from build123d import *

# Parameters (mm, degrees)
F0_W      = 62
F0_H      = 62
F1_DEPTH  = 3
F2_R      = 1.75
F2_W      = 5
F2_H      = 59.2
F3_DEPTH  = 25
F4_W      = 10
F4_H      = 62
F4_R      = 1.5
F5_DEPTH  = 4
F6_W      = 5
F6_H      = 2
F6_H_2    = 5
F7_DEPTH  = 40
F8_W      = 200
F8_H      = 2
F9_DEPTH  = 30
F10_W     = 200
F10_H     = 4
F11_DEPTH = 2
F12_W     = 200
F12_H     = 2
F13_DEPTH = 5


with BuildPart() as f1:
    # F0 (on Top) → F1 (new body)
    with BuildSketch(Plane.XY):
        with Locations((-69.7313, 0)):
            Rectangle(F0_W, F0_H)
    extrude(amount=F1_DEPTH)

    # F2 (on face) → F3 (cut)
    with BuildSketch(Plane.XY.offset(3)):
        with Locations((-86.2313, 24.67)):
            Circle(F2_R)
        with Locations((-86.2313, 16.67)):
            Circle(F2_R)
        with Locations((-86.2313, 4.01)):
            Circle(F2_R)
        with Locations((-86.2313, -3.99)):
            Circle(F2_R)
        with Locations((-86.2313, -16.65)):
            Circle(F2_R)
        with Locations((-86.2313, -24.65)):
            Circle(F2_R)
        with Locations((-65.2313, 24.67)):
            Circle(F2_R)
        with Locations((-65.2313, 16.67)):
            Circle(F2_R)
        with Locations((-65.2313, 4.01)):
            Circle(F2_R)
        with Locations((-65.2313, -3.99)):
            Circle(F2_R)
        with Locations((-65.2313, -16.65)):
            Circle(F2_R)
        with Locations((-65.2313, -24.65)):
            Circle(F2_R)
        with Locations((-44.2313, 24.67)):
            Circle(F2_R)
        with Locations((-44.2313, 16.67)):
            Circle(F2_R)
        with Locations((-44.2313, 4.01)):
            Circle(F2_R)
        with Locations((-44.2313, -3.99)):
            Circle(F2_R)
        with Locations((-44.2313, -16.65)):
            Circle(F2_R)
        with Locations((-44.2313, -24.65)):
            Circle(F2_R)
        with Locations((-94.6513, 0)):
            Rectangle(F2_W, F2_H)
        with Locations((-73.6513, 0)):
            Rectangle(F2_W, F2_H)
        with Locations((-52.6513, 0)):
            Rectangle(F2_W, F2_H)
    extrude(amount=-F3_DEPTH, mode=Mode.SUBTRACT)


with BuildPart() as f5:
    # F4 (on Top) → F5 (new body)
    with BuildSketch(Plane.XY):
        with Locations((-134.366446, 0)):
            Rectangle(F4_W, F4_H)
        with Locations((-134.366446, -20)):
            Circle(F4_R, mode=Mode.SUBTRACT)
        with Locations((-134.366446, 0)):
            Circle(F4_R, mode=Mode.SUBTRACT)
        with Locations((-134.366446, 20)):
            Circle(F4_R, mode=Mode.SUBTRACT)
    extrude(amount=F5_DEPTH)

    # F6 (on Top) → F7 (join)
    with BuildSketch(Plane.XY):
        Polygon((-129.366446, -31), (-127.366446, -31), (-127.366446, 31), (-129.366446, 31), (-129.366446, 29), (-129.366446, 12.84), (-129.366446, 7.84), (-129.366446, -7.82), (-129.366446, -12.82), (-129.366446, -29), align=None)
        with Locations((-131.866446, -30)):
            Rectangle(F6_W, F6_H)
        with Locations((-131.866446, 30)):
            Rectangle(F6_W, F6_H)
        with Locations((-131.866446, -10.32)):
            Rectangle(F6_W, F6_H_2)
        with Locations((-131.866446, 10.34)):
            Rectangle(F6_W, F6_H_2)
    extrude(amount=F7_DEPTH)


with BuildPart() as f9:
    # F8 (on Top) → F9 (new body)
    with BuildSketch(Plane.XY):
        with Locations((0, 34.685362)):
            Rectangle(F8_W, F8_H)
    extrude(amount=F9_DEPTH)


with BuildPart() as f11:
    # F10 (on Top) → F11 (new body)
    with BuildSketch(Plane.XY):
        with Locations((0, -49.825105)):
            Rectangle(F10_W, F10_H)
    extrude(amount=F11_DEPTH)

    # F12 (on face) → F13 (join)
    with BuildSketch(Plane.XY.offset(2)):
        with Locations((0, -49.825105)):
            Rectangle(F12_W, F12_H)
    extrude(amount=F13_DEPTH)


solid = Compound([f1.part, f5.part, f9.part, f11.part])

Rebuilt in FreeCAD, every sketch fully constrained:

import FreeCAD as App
import Part
import Sketcher
from FreeCAD import Vector

doc = App.newDocument("Part")
body = doc.addObject("PartDesign::Body", "Body")

# Sketch on XY plane
sketch1 = body.newObject("Sketcher::SketchObject", "Sketch")
sketch1.AttachmentSupport = (doc.getObject("XY_Plane"), [""])
sketch1.MapMode = "FlatFace"
sketch1.addGeometry([
    Part.LineSegment(Vector(-101, 31, 0), Vector(-101, -31, 0)),
    Part.LineSegment(Vector(-101, -31, 0), Vector(-39, -31, 0)),
    Part.LineSegment(Vector(-39, -31, 0), Vector(-39, 31, 0)),
    Part.LineSegment(Vector(-39, 31, 0), Vector(-101, 31, 0)),
], False)
sketch1.addConstraint([
    Sketcher.Constraint("Coincident", 0, 2, 1, 1),
    Sketcher.Constraint("Coincident", 1, 2, 2, 1),
    Sketcher.Constraint("Coincident", 2, 2, 3, 1),
    Sketcher.Constraint("Coincident", 3, 2, 0, 1),
    Sketcher.Constraint("Vertical", 0),
    Sketcher.Constraint("Horizontal", 1),
    Sketcher.Constraint("Vertical", 2),
    Sketcher.Constraint("Horizontal", 3),
    Sketcher.Constraint("Equal", 3, 0),
    Sketcher.Constraint("DistanceX", 1, 1, 1, 2, 62.0),
    Sketcher.Constraint("DistanceY", 0, 2, -1, 1, 31.0),
    Sketcher.Constraint("DistanceX", 0, 2, -1, 1, 100.7313),
])
pad1 = body.newObject("PartDesign::Pad", "Pad")
pad1.Profile = sketch1
pad1.Length = 3

# Sketch on XY plane
sketch2 = body.newObject("Sketcher::SketchObject", "Sketch001")
sketch2.AttachmentSupport = (doc.getObject("XY_Plane"), [""])
sketch2.MapMode = "FlatFace"
sketch2.AttachmentOffset = App.Placement(Vector(0, 0, 3), App.Rotation())
sketch2.addGeometry([
    Part.Circle(Vector(-86.2, 24.7, 0), Vector(0, 0, 1), 1.8),  # 0
    Part.Circle(Vector(-86.2, 16.7, 0), Vector(0, 0, 1), 1.8),  # 1
    Part.Circle(Vector(-86.2, 4, 0), Vector(0, 0, 1), 1.8),  # 2
    Part.Circle(Vector(-86.2, -4, 0), Vector(0, 0, 1), 1.8),  # 3
    Part.Circle(Vector(-86.2, -16.6, 0), Vector(0, 0, 1), 1.8),  # 4
    Part.Circle(Vector(-86.2, -24.6, 0), Vector(0, 0, 1), 1.8),  # 5
    Part.Circle(Vector(-65.2, 24.7, 0), Vector(0, 0, 1), 1.8),  # 6
    Part.Circle(Vector(-65.2, 16.7, 0), Vector(0, 0, 1), 1.8),  # 7
    Part.Circle(Vector(-65.2, 4, 0), Vector(0, 0, 1), 1.8),  # 8
    Part.Circle(Vector(-65.2, -4, 0), Vector(0, 0, 1), 1.8),  # 9
    Part.Circle(Vector(-65.2, -16.6, 0), Vector(0, 0, 1), 1.8),  # 10
    Part.Circle(Vector(-65.2, -24.6, 0), Vector(0, 0, 1), 1.8),  # 11
    Part.Circle(Vector(-44.2, 24.7, 0), Vector(0, 0, 1), 1.8),  # 12
    Part.Circle(Vector(-44.2, 16.7, 0), Vector(0, 0, 1), 1.8),  # 13
    Part.Circle(Vector(-44.2, 4, 0), Vector(0, 0, 1), 1.8),  # 14
    Part.Circle(Vector(-44.2, -4, 0), Vector(0, 0, 1), 1.8),  # 15
    Part.Circle(Vector(-44.2, -16.6, 0), Vector(0, 0, 1), 1.8),  # 16
    Part.Circle(Vector(-44.2, -24.6, 0), Vector(0, 0, 1), 1.8),  # 17
    Part.LineSegment(Vector(-97.2, 29.6, 0), Vector(-97.2, -29.6, 0)),  # 18
    Part.LineSegment(Vector(-97.2, -29.6, 0), Vector(-92.2, -29.6, 0)),  # 19
    Part.LineSegment(Vector(-92.2, -29.6, 0), Vector(-92.2, 29.6, 0)),  # 20
    Part.LineSegment(Vector(-92.2, 29.6, 0), Vector(-97.2, 29.6, 0)),  # 21
    Part.LineSegment(Vector(-76.2, 29.6, 0), Vector(-76.2, -29.6, 0)),  # 22
    Part.LineSegment(Vector(-76.2, -29.6, 0), Vector(-71.2, -29.6, 0)),  # 23
    Part.LineSegment(Vector(-71.2, -29.6, 0), Vector(-71.2, 29.6, 0)),  # 24
    Part.LineSegment(Vector(-71.2, 29.6, 0), Vector(-76.2, 29.6, 0)),  # 25
    Part.LineSegment(Vector(-55.2, 29.6, 0), Vector(-55.2, -29.6, 0)),  # 26
    Part.LineSegment(Vector(-55.2, -29.6, 0), Vector(-50.2, -29.6, 0)),  # 27
    Part.LineSegment(Vector(-50.2, -29.6, 0), Vector(-50.2, 29.6, 0)),  # 28
    Part.LineSegment(Vector(-50.2, 29.6, 0), Vector(-55.2, 29.6, 0)),  # 29
], False)
sketch2.addConstraint([
    Sketcher.Constraint("Coincident", 18, 2, 19, 1),
    Sketcher.Constraint("Coincident", 19, 2, 20, 1),
    Sketcher.Constraint("Coincident", 20, 2, 21, 1),
    Sketcher.Constraint("Coincident", 21, 2, 18, 1),
    Sketcher.Constraint("Coincident", 22, 2, 23, 1),
    Sketcher.Constraint("Coincident", 23, 2, 24, 1),
    Sketcher.Constraint("Coincident", 24, 2, 25, 1),
    Sketcher.Constraint("Coincident", 25, 2, 22, 1),
    Sketcher.Constraint("Coincident", 26, 2, 27, 1),
    Sketcher.Constraint("Coincident", 27, 2, 28, 1),
    Sketcher.Constraint("Coincident", 28, 2, 29, 1),
    Sketcher.Constraint("Coincident", 29, 2, 26, 1),
    Sketcher.Constraint("Vertical", 18),
    Sketcher.Constraint("Horizontal", 19),
    Sketcher.Constraint("Vertical", 20),
    Sketcher.Constraint("Horizontal", 21),
    Sketcher.Constraint("Vertical", 22),
    Sketcher.Constraint("Horizontal", 23),
    Sketcher.Constraint("Vertical", 24),
    Sketcher.Constraint("Horizontal", 25),
    Sketcher.Constraint("Vertical", 26),
    Sketcher.Constraint("Horizontal", 27),
    Sketcher.Constraint("Vertical", 28),
    Sketcher.Constraint("Horizontal", 29),
    Sketcher.Constraint("Equal", 0, 1),
    Sketcher.Constraint("Equal", 1, 2),
    Sketcher.Constraint("Equal", 2, 3),
    Sketcher.Constraint("Equal", 3, 4),
    Sketcher.Constraint("Equal", 4, 5),
    Sketcher.Constraint("Equal", 5, 6),
    Sketcher.Constraint("Equal", 6, 7),
    Sketcher.Constraint("Equal", 7, 8),
    Sketcher.Constraint("Equal", 8, 9),
    Sketcher.Constraint("Equal", 9, 10),
    Sketcher.Constraint("Equal", 10, 11),
    Sketcher.Constraint("Equal", 11, 12),
    Sketcher.Constraint("Equal", 12, 13),
    Sketcher.Constraint("Equal", 13, 14),
    Sketcher.Constraint("Equal", 14, 15),
    Sketcher.Constraint("Equal", 15, 16),
    Sketcher.Constraint("Equal", 16, 17),
    Sketcher.Constraint("Horizontal", 0, 3, 6, 3),
    Sketcher.Constraint("Horizontal", 1, 3, 7, 3),
    Sketcher.Constraint("Horizontal", 2, 3, 8, 3),
    Sketcher.Constraint("Horizontal", 3, 3, 9, 3),
    Sketcher.Constraint("Horizontal", 4, 3, 10, 3),
    Sketcher.Constraint("Horizontal", 5, 3, 11, 3),
    Sketcher.Constraint("Horizontal", 6, 3, 12, 3),
    Sketcher.Constraint("Horizontal", 7, 3, 13, 3),
    Sketcher.Constraint("Horizontal", 8, 3, 14, 3),
    Sketcher.Constraint("Horizontal", 9, 3, 15, 3),
    Sketcher.Constraint("Horizontal", 10, 3, 16, 3),
    Sketcher.Constraint("Horizontal", 11, 3, 17, 3),
    Sketcher.Constraint("Horizontal", 19, 2, 22, 2),
    Sketcher.Constraint("Horizontal", 21, 2, 24, 2),
    Sketcher.Constraint("Horizontal", 23, 2, 26, 2),
    Sketcher.Constraint("Horizontal", 25, 2, 28, 2),
    Sketcher.Constraint("Vertical", 0, 3, 1, 3),
    Sketcher.Constraint("Vertical", 1, 3, 2, 3),
    Sketcher.Constraint("Vertical", 2, 3, 3, 3),
    Sketcher.Constraint("Vertical", 3, 3, 4, 3),
    Sketcher.Constraint("Vertical", 4, 3, 5, 3),
    Sketcher.Constraint("Vertical", 6, 3, 7, 3),
    Sketcher.Constraint("Vertical", 7, 3, 8, 3),
    Sketcher.Constraint("Vertical", 8, 3, 9, 3),
    Sketcher.Constraint("Vertical", 9, 3, 10, 3),
    Sketcher.Constraint("Vertical", 10, 3, 11, 3),
    Sketcher.Constraint("Vertical", 12, 3, 13, 3),
    Sketcher.Constraint("Vertical", 13, 3, 14, 3),
    Sketcher.Constraint("Vertical", 14, 3, 15, 3),
    Sketcher.Constraint("Vertical", 15, 3, 16, 3),
    Sketcher.Constraint("Vertical", 16, 3, 17, 3),
    Sketcher.Constraint("Equal", 21, 23),
    Sketcher.Constraint("Equal", 25, 27),
    Sketcher.Constraint("Diameter", 0, 3.5),
    Sketcher.Constraint("DistanceX", 19, 1, 19, 2, 5.0),
    Sketcher.Constraint("DistanceY", 18, 2, 18, 1, 59.2),
    Sketcher.Constraint("DistanceY", 1, 3, 0, 3, 8.0),
    Sketcher.Constraint("DistanceY", 3, 3, 2, 3, 8.0),
    Sketcher.Constraint("DistanceY", 5, 3, 4, 3, 8.0),
    Sketcher.Constraint("DistanceX", 0, 3, 6, 3, 21.0),
    Sketcher.Constraint("DistanceX", 6, 3, 12, 3, 21.0),
    Sketcher.Constraint("DistanceX", 19, 2, 22, 2, 16.0),
    Sketcher.Constraint("DistanceX", 23, 2, 26, 2, 16.0),
    Sketcher.Constraint("DistanceY", 18, 2, -1, 1, 29.6),
    Sketcher.Constraint("DistanceY", -1, 1, 0, 3, 24.67),
    Sketcher.Constraint("DistanceY", -1, 1, 2, 3, 4.01),
    Sketcher.Constraint("DistanceY", 4, 3, -1, 1, 16.65),
    Sketcher.Constraint("DistanceX", 18, 2, 5, 3, 10.92),
    Sketcher.Constraint("DistanceX", 0, 3, -1, 1, 86.2313),
])
pocket1 = body.newObject("PartDesign::Pocket", "Pocket")
pocket1.Profile = sketch2
pocket1.Length = 25
body2 = doc.addObject("PartDesign::Body", "Body001")

# Sketch on XY plane
sketch3 = body2.newObject("Sketcher::SketchObject", "Sketch002")
sketch3.AttachmentSupport = (doc.getObject("XY_Plane001"), [""])
sketch3.MapMode = "FlatFace"
sketch3.addGeometry([
    Part.LineSegment(Vector(-139.4, 31, 0), Vector(-139.4, -31, 0)),  # 0
    Part.LineSegment(Vector(-139.4, -31, 0), Vector(-129.4, -31, 0)),  # 1
    Part.LineSegment(Vector(-129.4, -31, 0), Vector(-129.4, 31, 0)),  # 2
    Part.LineSegment(Vector(-129.4, 31, 0), Vector(-139.4, 31, 0)),  # 3
    Part.Circle(Vector(-134.4, -20, 0), Vector(0, 0, 1), 1.5),  # 4
    Part.Circle(Vector(-134.4, 0, 0), Vector(0, 0, 1), 1.5),  # 5
    Part.Circle(Vector(-134.4, 20, 0), Vector(0, 0, 1), 1.5),  # 6
], False)
sketch3.addConstraint([
    Sketcher.Constraint("Coincident", 0, 2, 1, 1),
    Sketcher.Constraint("Coincident", 1, 2, 2, 1),
    Sketcher.Constraint("Coincident", 2, 2, 3, 1),
    Sketcher.Constraint("Coincident", 3, 2, 0, 1),
    Sketcher.Constraint("Vertical", 0),
    Sketcher.Constraint("Horizontal", 1),
    Sketcher.Constraint("Vertical", 2),
    Sketcher.Constraint("Horizontal", 3),
    Sketcher.Constraint("Equal", 4, 5),
    Sketcher.Constraint("Equal", 5, 6),
    Sketcher.Constraint("Symmetric", 4, 3, 6, 3, -1),
    Sketcher.Constraint("PointOnObject", 5, 3, -1),
    Sketcher.Constraint("Vertical", 4, 3, 5, 3),
    Sketcher.Constraint("Diameter", 4, 3.0),
    Sketcher.Constraint("DistanceX", 1, 1, 1, 2, 10.0),
    Sketcher.Constraint("DistanceY", 0, 2, 0, 1, 62.0),
    Sketcher.Constraint("DistanceY", 4, 3, -1, 1, 20.0),
    Sketcher.Constraint("DistanceY", 0, 2, -1, 1, 31.0),
    Sketcher.Constraint("DistanceX", 0, 2, 4, 3, 5.0),
    Sketcher.Constraint("DistanceX", 4, 3, -1, 1, 134.366446),
])
pad2 = body2.newObject("PartDesign::Pad", "Pad001")
pad2.Profile = sketch3
pad2.Length = 4

# Sketch on XY plane
sketch4 = body2.newObject("Sketcher::SketchObject", "Sketch003")
sketch4.AttachmentSupport = (doc.getObject("XY_Plane001"), [""])
sketch4.MapMode = "FlatFace"
sketch4.addGeometry([
    Part.LineSegment(Vector(-127.4, -31, 0), Vector(-127.4, 31, 0)),  # 0
    Part.LineSegment(Vector(-127.4, 31, 0), Vector(-134.4, 31, 0)),  # 1
    Part.LineSegment(Vector(-134.4, 31, 0), Vector(-134.4, 29, 0)),  # 2
    Part.LineSegment(Vector(-134.4, 29, 0), Vector(-129.4, 29, 0)),  # 3
    Part.LineSegment(Vector(-129.4, 29, 0), Vector(-129.4, 12.8, 0)),  # 4
    Part.LineSegment(Vector(-129.4, 12.8, 0), Vector(-134.4, 12.8, 0)),  # 5
    Part.LineSegment(Vector(-134.4, 12.8, 0), Vector(-134.4, 7.8, 0)),  # 6
    Part.LineSegment(Vector(-134.4, 7.8, 0), Vector(-129.4, 7.8, 0)),  # 7
    Part.LineSegment(Vector(-129.4, 7.8, 0), Vector(-129.4, -7.8, 0)),  # 8
    Part.LineSegment(Vector(-129.4, -7.8, 0), Vector(-134.4, -7.8, 0)),  # 9
    Part.LineSegment(Vector(-134.4, -7.8, 0), Vector(-134.4, -12.8, 0)),  # 10
    Part.LineSegment(Vector(-134.4, -12.8, 0), Vector(-129.4, -12.8, 0)),  # 11
    Part.LineSegment(Vector(-129.4, -12.8, 0), Vector(-129.4, -29, 0)),  # 12
    Part.LineSegment(Vector(-129.4, -29, 0), Vector(-134.4, -29, 0)),  # 13
    Part.LineSegment(Vector(-134.4, -29, 0), Vector(-134.4, -31, 0)),  # 14
    Part.LineSegment(Vector(-134.4, -31, 0), Vector(-127.4, -31, 0)),  # 15
], False)
sketch4.addConstraint([
    Sketcher.Constraint("Coincident", 0, 2, 1, 1),
    Sketcher.Constraint("Coincident", 1, 2, 2, 1),
    Sketcher.Constraint("Coincident", 2, 2, 3, 1),
    Sketcher.Constraint("Coincident", 3, 2, 4, 1),
    Sketcher.Constraint("Coincident", 4, 2, 5, 1),
    Sketcher.Constraint("Coincident", 5, 2, 6, 1),
    Sketcher.Constraint("Coincident", 6, 2, 7, 1),
    Sketcher.Constraint("Coincident", 7, 2, 8, 1),
    Sketcher.Constraint("Coincident", 8, 2, 9, 1),
    Sketcher.Constraint("Coincident", 9, 2, 10, 1),
    Sketcher.Constraint("Coincident", 10, 2, 11, 1),
    Sketcher.Constraint("Coincident", 11, 2, 12, 1),
    Sketcher.Constraint("Coincident", 12, 2, 13, 1),
    Sketcher.Constraint("Coincident", 13, 2, 14, 1),
    Sketcher.Constraint("Coincident", 14, 2, 15, 1),
    Sketcher.Constraint("Coincident", 15, 2, 0, 1),
    Sketcher.Constraint("Vertical", 0),
    Sketcher.Constraint("Horizontal", 1),
    Sketcher.Constraint("Vertical", 2),
    Sketcher.Constraint("Horizontal", 3),
    Sketcher.Constraint("Vertical", 4),
    Sketcher.Constraint("Horizontal", 5),
    Sketcher.Constraint("Vertical", 6),
    Sketcher.Constraint("Horizontal", 7),
    Sketcher.Constraint("Vertical", 8),
    Sketcher.Constraint("Horizontal", 9),
    Sketcher.Constraint("Vertical", 10),
    Sketcher.Constraint("Horizontal", 11),
    Sketcher.Constraint("Vertical", 12),
    Sketcher.Constraint("Horizontal", 13),
    Sketcher.Constraint("Vertical", 14),
    Sketcher.Constraint("Horizontal", 15),
    Sketcher.Constraint("Symmetric", 3, 2, 12, 2, -1),
    Sketcher.Constraint("Symmetric", 1, 2, 14, 2, -1),
    Sketcher.Constraint("Vertical", 2, 2, 5, 2),
    Sketcher.Constraint("Vertical", 4, 2, 7, 2),
    Sketcher.Constraint("Vertical", 6, 2, 9, 2),
    Sketcher.Constraint("Equal", 13, 6),
    Sketcher.Constraint("Equal", 6, 10),
    Sketcher.Constraint("DistanceX", 1, 2, 1, 1, 7.0),
    Sketcher.Constraint("DistanceX", 3, 1, 3, 2, 5.0),
    Sketcher.Constraint("DistanceY", 0, 1, 0, 2, 62.0),
    Sketcher.Constraint("DistanceY", 2, 2, 2, 1, 2.0),
    Sketcher.Constraint("DistanceY", 4, 2, 4, 1, 16.16),
    Sketcher.Constraint("DistanceY", 8, 2, 8, 1, 15.66),
    Sketcher.Constraint("DistanceX", 0, 2, -1, 1, 127.366446),
])
pad3 = body2.newObject("PartDesign::Pad", "Pad002")
pad3.Profile = sketch4
pad3.Length = 40
body3 = doc.addObject("PartDesign::Body", "Body002")

# Sketch on XY plane
sketch5 = body3.newObject("Sketcher::SketchObject", "Sketch004")
sketch5.AttachmentSupport = (doc.getObject("XY_Plane002"), [""])
sketch5.MapMode = "FlatFace"
sketch5.addGeometry([
    Part.LineSegment(Vector(-100, 35.7, 0), Vector(-100, 33.7, 0)),
    Part.LineSegment(Vector(-100, 33.7, 0), Vector(100, 33.7, 0)),
    Part.LineSegment(Vector(100, 33.7, 0), Vector(100, 35.7, 0)),
    Part.LineSegment(Vector(100, 35.7, 0), Vector(-100, 35.7, 0)),
], False)
sketch5.addConstraint([
    Sketcher.Constraint("Coincident", 0, 2, 1, 1),
    Sketcher.Constraint("Coincident", 1, 2, 2, 1),
    Sketcher.Constraint("Coincident", 2, 2, 3, 1),
    Sketcher.Constraint("Coincident", 3, 2, 0, 1),
    Sketcher.Constraint("Vertical", 0),
    Sketcher.Constraint("Horizontal", 1),
    Sketcher.Constraint("Vertical", 2),
    Sketcher.Constraint("Horizontal", 3),
    Sketcher.Constraint("DistanceX", 1, 1, 1, 2, 200.0),
    Sketcher.Constraint("DistanceY", 0, 2, 0, 1, 2.0),
    Sketcher.Constraint("DistanceX", 0, 2, -1, 1, 100.0),
    Sketcher.Constraint("DistanceY", -1, 1, 0, 2, 33.685362),
])
pad4 = body3.newObject("PartDesign::Pad", "Pad003")
pad4.Profile = sketch5
pad4.Length = 30
body4 = doc.addObject("PartDesign::Body", "Body003")

# Sketch on XY plane
sketch6 = body4.newObject("Sketcher::SketchObject", "Sketch005")
sketch6.AttachmentSupport = (doc.getObject("XY_Plane003"), [""])
sketch6.MapMode = "FlatFace"
sketch6.addGeometry([
    Part.LineSegment(Vector(-100, -47.8, 0), Vector(-100, -51.8, 0)),
    Part.LineSegment(Vector(-100, -51.8, 0), Vector(100, -51.8, 0)),
    Part.LineSegment(Vector(100, -51.8, 0), Vector(100, -47.8, 0)),
    Part.LineSegment(Vector(100, -47.8, 0), Vector(-100, -47.8, 0)),
], False)
sketch6.addConstraint([
    Sketcher.Constraint("Coincident", 0, 2, 1, 1),
    Sketcher.Constraint("Coincident", 1, 2, 2, 1),
    Sketcher.Constraint("Coincident", 2, 2, 3, 1),
    Sketcher.Constraint("Coincident", 3, 2, 0, 1),
    Sketcher.Constraint("Vertical", 0),
    Sketcher.Constraint("Horizontal", 1),
    Sketcher.Constraint("Vertical", 2),
    Sketcher.Constraint("Horizontal", 3),
    Sketcher.Constraint("DistanceX", 1, 1, 1, 2, 200.0),
    Sketcher.Constraint("DistanceY", 0, 2, 0, 1, 4.0),
    Sketcher.Constraint("DistanceX", 0, 2, -1, 1, 100.0),
    Sketcher.Constraint("DistanceY", 0, 2, -1, 1, 51.825105),
])
pad5 = body4.newObject("PartDesign::Pad", "Pad004")
pad5.Profile = sketch6
pad5.Length = 2

# Sketch on XY plane
sketch7 = body4.newObject("Sketcher::SketchObject", "Sketch006")
sketch7.AttachmentSupport = (doc.getObject("XY_Plane003"), [""])
sketch7.MapMode = "FlatFace"
sketch7.AttachmentOffset = App.Placement(Vector(0, 0, 2), App.Rotation())
sketch7.addGeometry([
    Part.LineSegment(Vector(-100, -48.8, 0), Vector(-100, -50.8, 0)),
    Part.LineSegment(Vector(-100, -50.8, 0), Vector(100, -50.8, 0)),
    Part.LineSegment(Vector(100, -50.8, 0), Vector(100, -48.8, 0)),
    Part.LineSegment(Vector(100, -48.8, 0), Vector(-100, -48.8, 0)),
], False)
sketch7.addConstraint([
    Sketcher.Constraint("Coincident", 0, 2, 1, 1),
    Sketcher.Constraint("Coincident", 1, 2, 2, 1),
    Sketcher.Constraint("Coincident", 2, 2, 3, 1),
    Sketcher.Constraint("Coincident", 3, 2, 0, 1),
    Sketcher.Constraint("Vertical", 0),
    Sketcher.Constraint("Horizontal", 1),
    Sketcher.Constraint("Vertical", 2),
    Sketcher.Constraint("Horizontal", 3),
    Sketcher.Constraint("DistanceX", 1, 1, 1, 2, 200.0),
    Sketcher.Constraint("DistanceY", 0, 2, 0, 1, 2.0),
    Sketcher.Constraint("DistanceX", 0, 2, -1, 1, 100.0),
    Sketcher.Constraint("DistanceY", 0, 2, -1, 1, 50.825105),
])
pad6 = body4.newObject("PartDesign::Pad", "Pad005")
pad6.Profile = sketch7
pad6.Length = 5

doc.recompute()
